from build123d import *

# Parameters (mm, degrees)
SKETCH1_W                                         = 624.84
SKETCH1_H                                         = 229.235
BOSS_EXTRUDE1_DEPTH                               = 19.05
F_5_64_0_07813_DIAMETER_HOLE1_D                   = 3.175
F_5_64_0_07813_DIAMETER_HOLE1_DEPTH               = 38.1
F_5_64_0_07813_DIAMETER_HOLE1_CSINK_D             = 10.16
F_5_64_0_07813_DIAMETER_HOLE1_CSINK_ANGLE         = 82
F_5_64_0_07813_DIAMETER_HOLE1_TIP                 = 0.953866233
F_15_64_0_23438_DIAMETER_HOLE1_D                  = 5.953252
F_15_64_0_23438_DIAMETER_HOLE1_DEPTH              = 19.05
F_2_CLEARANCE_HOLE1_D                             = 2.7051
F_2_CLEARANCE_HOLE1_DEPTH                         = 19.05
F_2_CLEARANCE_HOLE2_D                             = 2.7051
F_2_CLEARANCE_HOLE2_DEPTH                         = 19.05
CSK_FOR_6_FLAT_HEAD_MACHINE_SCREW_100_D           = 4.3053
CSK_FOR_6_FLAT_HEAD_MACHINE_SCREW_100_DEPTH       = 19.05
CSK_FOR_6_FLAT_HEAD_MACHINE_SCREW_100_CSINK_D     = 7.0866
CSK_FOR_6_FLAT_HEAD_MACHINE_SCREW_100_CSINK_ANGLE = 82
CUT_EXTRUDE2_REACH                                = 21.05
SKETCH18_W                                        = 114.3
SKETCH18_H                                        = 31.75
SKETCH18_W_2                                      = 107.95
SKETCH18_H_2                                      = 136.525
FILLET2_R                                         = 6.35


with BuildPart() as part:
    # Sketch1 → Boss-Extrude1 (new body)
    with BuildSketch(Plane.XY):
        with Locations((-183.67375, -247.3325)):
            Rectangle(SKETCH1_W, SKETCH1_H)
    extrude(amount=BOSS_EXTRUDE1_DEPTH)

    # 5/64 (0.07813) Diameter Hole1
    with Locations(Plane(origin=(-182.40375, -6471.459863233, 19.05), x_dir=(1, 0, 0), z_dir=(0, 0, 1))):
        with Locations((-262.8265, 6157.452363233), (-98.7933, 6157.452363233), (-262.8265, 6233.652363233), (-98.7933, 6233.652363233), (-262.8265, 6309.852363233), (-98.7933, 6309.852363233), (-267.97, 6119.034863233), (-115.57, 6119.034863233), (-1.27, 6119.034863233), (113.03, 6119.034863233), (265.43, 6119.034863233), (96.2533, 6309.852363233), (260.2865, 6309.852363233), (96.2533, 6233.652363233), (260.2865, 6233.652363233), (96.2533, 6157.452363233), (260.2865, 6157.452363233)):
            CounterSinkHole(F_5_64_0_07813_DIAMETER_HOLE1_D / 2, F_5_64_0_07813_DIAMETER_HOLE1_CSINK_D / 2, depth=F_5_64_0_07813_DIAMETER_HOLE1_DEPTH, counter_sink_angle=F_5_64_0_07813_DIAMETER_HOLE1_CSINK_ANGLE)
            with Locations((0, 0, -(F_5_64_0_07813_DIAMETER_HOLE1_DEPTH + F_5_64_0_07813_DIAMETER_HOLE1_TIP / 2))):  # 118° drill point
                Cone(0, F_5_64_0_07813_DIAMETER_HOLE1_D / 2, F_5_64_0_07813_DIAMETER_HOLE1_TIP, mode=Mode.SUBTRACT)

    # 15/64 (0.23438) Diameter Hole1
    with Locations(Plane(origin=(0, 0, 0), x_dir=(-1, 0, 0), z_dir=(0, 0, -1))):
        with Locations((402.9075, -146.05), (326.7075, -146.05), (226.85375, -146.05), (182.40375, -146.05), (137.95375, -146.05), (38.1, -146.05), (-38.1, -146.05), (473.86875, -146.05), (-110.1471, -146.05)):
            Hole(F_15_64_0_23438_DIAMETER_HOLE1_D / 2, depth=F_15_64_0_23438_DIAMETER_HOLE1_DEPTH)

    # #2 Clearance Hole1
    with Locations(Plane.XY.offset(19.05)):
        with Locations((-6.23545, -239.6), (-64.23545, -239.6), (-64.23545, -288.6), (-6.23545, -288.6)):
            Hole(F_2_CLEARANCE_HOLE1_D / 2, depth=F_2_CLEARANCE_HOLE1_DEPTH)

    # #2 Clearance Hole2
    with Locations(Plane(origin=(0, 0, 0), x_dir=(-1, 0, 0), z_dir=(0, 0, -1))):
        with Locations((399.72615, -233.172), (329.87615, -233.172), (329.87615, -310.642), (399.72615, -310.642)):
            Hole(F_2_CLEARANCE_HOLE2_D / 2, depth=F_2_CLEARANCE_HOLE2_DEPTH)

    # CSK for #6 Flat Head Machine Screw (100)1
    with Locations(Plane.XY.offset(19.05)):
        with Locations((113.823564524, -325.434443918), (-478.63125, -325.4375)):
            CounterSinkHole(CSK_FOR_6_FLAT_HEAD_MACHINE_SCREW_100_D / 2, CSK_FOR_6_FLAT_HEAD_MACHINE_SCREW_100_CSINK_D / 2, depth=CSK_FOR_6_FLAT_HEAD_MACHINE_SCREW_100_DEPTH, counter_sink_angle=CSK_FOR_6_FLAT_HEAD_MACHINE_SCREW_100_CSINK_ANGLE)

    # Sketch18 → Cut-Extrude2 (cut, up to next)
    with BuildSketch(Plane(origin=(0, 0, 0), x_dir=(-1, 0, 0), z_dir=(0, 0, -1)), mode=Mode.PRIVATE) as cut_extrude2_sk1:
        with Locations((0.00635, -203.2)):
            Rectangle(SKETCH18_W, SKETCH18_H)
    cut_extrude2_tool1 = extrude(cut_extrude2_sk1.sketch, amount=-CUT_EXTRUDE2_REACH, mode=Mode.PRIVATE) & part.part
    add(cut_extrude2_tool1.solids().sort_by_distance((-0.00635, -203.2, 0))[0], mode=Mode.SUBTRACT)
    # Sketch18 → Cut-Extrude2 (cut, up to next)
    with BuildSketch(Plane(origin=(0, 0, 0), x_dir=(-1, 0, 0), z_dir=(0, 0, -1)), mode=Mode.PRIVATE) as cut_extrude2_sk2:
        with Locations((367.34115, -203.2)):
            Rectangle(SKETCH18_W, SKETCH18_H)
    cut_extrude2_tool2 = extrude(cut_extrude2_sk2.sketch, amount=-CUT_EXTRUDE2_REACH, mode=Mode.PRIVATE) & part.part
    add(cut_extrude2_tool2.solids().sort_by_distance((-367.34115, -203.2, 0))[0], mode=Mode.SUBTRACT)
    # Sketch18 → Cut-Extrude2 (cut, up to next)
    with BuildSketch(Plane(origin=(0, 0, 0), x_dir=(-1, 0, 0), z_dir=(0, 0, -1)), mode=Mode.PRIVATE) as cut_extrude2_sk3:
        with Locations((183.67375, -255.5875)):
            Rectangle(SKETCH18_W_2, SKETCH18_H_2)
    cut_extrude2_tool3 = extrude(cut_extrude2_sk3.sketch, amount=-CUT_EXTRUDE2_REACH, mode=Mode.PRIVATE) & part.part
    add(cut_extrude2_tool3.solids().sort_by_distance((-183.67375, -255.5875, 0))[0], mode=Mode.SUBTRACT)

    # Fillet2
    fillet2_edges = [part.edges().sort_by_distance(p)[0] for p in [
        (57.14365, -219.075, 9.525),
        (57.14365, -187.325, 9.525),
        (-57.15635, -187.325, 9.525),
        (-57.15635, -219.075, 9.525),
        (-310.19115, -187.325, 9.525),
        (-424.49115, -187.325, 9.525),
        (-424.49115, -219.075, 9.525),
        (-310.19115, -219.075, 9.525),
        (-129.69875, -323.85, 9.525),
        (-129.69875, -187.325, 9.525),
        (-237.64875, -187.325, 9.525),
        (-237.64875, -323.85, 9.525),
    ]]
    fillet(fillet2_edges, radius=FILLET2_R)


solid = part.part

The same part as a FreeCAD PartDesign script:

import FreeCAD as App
import Part
import Sketcher
from FreeCAD import Vector
Q = App.Units.Quantity


def edges_at(feature, points):
    """Names of the edges that pass closest to the given points."""
    edges = feature.Shape.Edges
    near = lambda p: min(range(len(edges)), key=lambda i: edges[i].distToShape(Part.Vertex(*p))[0])
    return sorted({f"Edge{near(p) + 1}" for p in points})

doc = App.newDocument("Part")
body = doc.addObject("PartDesign::Body", "Body")

# Sketch on XY plane
sketch1 = doc.addObject("Sketcher::SketchObject", "Sketch")
body.addObject(sketch1)
sketch1.AttachmentSupport = (doc.XY_Plane, [""])
sketch1.MapMode = "FlatFace"
sketch1.addGeometry(Part.LineSegment(Vector(-496, -133, 0), Vector(-496, -362, 0)), False)
sketch1.addGeometry(Part.LineSegment(Vector(-496, -362, 0), Vector(129, -362, 0)), False)
sketch1.addGeometry(Part.LineSegment(Vector(129, -362, 0), Vector(129, -133, 0)), False)
sketch1.addGeometry(Part.LineSegment(Vector(129, -133, 0), Vector(-496, -133, 0)), False)
sketch1.addConstraint(Sketcher.Constraint("Coincident", 0, 2, 1, 1))
sketch1.addConstraint(Sketcher.Constraint("Coincident", 1, 2, 2, 1))
sketch1.addConstraint(Sketcher.Constraint("Coincident", 2, 2, 3, 1))
sketch1.addConstraint(Sketcher.Constraint("Coincident", 3, 2, 0, 1))
sketch1.addConstraint(Sketcher.Constraint("Vertical", 0))
sketch1.addConstraint(Sketcher.Constraint("Horizontal", 1))
sketch1.addConstraint(Sketcher.Constraint("Vertical", 2))
sketch1.addConstraint(Sketcher.Constraint("Horizontal", 3))
sketch1.addConstraint(Sketcher.Constraint("DistanceX", 1, 1, 1, 2, Q("24.6 in")))
sketch1.addConstraint(Sketcher.Constraint("DistanceY", 0, 2, 0, 1, Q("9.025 in")))
sketch1.addConstraint(Sketcher.Constraint("DistanceY", 0, 2, -1, 1, Q("14.25 in")))
sketch1.addConstraint(Sketcher.Constraint("DistanceX", 0, 2, -1, 1, Q("19.53125 in")))
pad1 = doc.addObject("PartDesign::Pad", "Pad")
body.addObject(pad1)
pad1.Profile = sketch1
pad1.Length = Q("0.75 in")

# Sketch on XY plane
sketch2 = doc.addObject("Sketcher::SketchObject", "Sketch001")
body.addObject(sketch2)
sketch2.AttachmentSupport = (doc.XY_Plane, [""])
sketch2.MapMode = "FlatFace"
sketch2.AttachmentOffset = App.Placement(Vector(0, 0, 0.75 * 25.4), App.Rotation())
sketch2.addGeometry(Part.Circle(Vector(-445.2, -314, 0), Vector(0, 0, 1), 1.6), False)
sketch2.addGeometry(Part.Circle(Vector(-281.2, -314, 0), Vector(0, 0, 1), 1.6), False)
sketch2.addGeometry(Part.Circle(Vector(-445.2, -237.8, 0), Vector(0, 0, 1), 1.6), False)
sketch2.addGeometry(Part.Circle(Vector(-281.2, -237.8, 0), Vector(0, 0, 1), 1.6), False)
sketch2.addGeometry(Part.Circle(Vector(-445.2, -161.6, 0), Vector(0, 0, 1), 1.6), False)
sketch2.addGeometry(Part.Circle(Vector(-281.2, -161.6, 0), Vector(0, 0, 1), 1.6), False)
sketch2.addGeometry(Part.Circle(Vector(-450.4, -352.4, 0), Vector(0, 0, 1), 1.6), False)
sketch2.addGeometry(Part.Circle(Vector(-298, -352.4, 0), Vector(0, 0, 1), 1.6), False)
sketch2.addGeometry(Part.Circle(Vector(-183.7, -352.4, 0), Vector(0, 0, 1), 1.6), False)
sketch2.addGeometry(Part.Circle(Vector(-69.4, -352.4, 0), Vector(0, 0, 1), 1.6), False)
sketch2.addGeometry(Part.Circle(Vector(83, -352.4, 0), Vector(0, 0, 1), 1.6), False)
sketch2.addGeometry(Part.Circle(Vector(-86.2, -161.6, 0), Vector(0, 0, 1), 1.6), False)
sketch2.addGeometry(Part.Circle(Vector(77.9, -161.6, 0), Vector(0, 0, 1), 1.6), False)
sketch2.addGeometry(Part.Circle(Vector(-86.2, -237.8, 0), Vector(0, 0, 1), 1.6), False)
sketch2.addGeometry(Part.Circle(Vector(77.9, -237.8, 0), Vector(0, 0, 1), 1.6), False)
sketch2.addGeometry(Part.Circle(Vector(-86.2, -314, 0), Vector(0, 0, 1), 1.6), False)
sketch2.addGeometry(Part.Circle(Vector(77.9, -314, 0), Vector(0, 0, 1), 1.6), False)
sketch2.addConstraint(Sketcher.Constraint("Equal", 0, 1))
sketch2.addConstraint(Sketcher.Constraint("Equal", 1, 2))
sketch2.addConstraint(Sketcher.Constraint("Equal", 2, 3))
sketch2.addConstraint(Sketcher.Constraint("Equal", 3, 4))
sketch2.addConstraint(Sketcher.Constraint("Equal", 4, 5))
sketch2.addConstraint(Sketcher.Constraint("Equal", 5, 6))
sketch2.addConstraint(Sketcher.Constraint("Equal", 6, 7))
sketch2.addConstraint(Sketcher.Constraint("Equal", 7, 8))
sketch2.addConstraint(Sketcher.Constraint("Equal", 8, 9))
sketch2.addConstraint(Sketcher.Constraint("Equal", 9, 10))
sketch2.addConstraint(Sketcher.Constraint("Equal", 10, 11))
sketch2.addConstraint(Sketcher.Constraint("Equal", 11, 12))
sketch2.addConstraint(Sketcher.Constraint("Equal", 12, 13))
sketch2.addConstraint(Sketcher.Constraint("Equal", 13, 14))
sketch2.addConstraint(Sketcher.Constraint("Equal", 14, 15))
sketch2.addConstraint(Sketcher.Constraint("Equal", 15, 16))
sketch2.addConstraint(Sketcher.Constraint("Horizontal", 0, 3, 1, 3))
sketch2.addConstraint(Sketcher.Constraint("Horizontal", 2, 3, 3, 3))
sketch2.addConstraint(Sketcher.Constraint("Horizontal", 4, 3, 5, 3))
sketch2.addConstraint(Sketcher.Constraint("Horizontal", 6, 3, 7, 3))
sketch2.addConstraint(Sketcher.Constraint("Horizontal", 7, 3, 8, 3))
sketch2.addConstraint(Sketcher.Constraint("Horizontal", 8, 3, 9, 3))
sketch2.addConstraint(Sketcher.Constraint("Horizontal", 9, 3, 10, 3))
sketch2.addConstraint(Sketcher.Constraint("Horizontal", 5, 3, 11, 3))
sketch2.addConstraint(Sketcher.Constraint("Horizontal", 11, 3, 12, 3))
sketch2.addConstraint(Sketcher.Constraint("Horizontal", 3, 3, 13, 3))
sketch2.addConstraint(Sketcher.Constraint("Horizontal", 13, 3, 14, 3))
sketch2.addConstraint(Sketcher.Constraint("Horizontal", 1, 3, 15, 3))
sketch2.addConstraint(Sketcher.Constraint("Horizontal", 15, 3, 16, 3))
sketch2.addConstraint(Sketcher.Constraint("Vertical", 0, 3, 2, 3))
sketch2.addConstraint(Sketcher.Constraint("Vertical", 1, 3, 3, 3))
sketch2.addConstraint(Sketcher.Constraint("Vertical", 2, 3, 4, 3))
sketch2.addConstraint(Sketcher.Constraint("Vertical", 3, 3, 5, 3))
sketch2.addConstraint(Sketcher.Constraint("Vertical", 11, 3, 13, 3))
sketch2.addConstraint(Sketcher.Constraint("Vertical", 12, 3, 14, 3))
sketch2.addConstraint(Sketcher.Constraint("Vertical", 13, 3, 15, 3))
sketch2.addConstraint(Sketcher.Constraint("Vertical", 14, 3, 16, 3))
sketch2.addConstraint(Sketcher.Constraint("Diameter", 0, Q("0.125 in")))
sketch2.addConstraint(Sketcher.Constraint("DistanceY", 0, 3, 2, 3, Q("3 in")))
sketch2.addConstraint(Sketcher.Constraint("DistanceY", 2, 3, 4, 3, Q("3 in")))
sketch2.addConstraint(Sketcher.Constraint("DistanceX", 6, 3, 7, 3, Q("6 in")))
sketch2.addConstraint(Sketcher.Constraint("DistanceX", 7, 3, 9, 3, Q("9 in")))
sketch2.addConstraint(Sketcher.Constraint("DistanceX", 9, 3, 10, 3, Q("6 in")))
sketch2.addConstraint(Sketcher.Constraint("DistanceX", 7, 3, 8, 3, Q("4.5 in")))
sketch2.addConstraint(Sketcher.Constraint("DistanceY", 6, 3, -1, 1, Q("13.875 in")))
sketch2.addConstraint(Sketcher.Constraint("DistanceX", 0, 3, 1, 3, Q("6.458 in")))
sketch2.addConstraint(Sketcher.Constraint("DistanceX", 5, 3, 11, 3, Q("7.679 in")))
sketch2.addConstraint(Sketcher.Constraint("DistanceX", 11, 3, 12, 3, Q("6.458 in")))
sketch2.addConstraint(Sketcher.Constraint("DistanceY", 0, 3, -1, 1, Q("12.3625 in")))
sketch2.addConstraint(Sketcher.Constraint("DistanceX", 6, 3, 0, 3, Q("0.2025 in")))
sketch2.addConstraint(Sketcher.Constraint("DistanceX", 0, 3, -1, 1, Q("445.23025 mm")))
doc.recompute()
hole = doc.addObject("PartDesign::Hole", "Hole")
body.addObject(hole)
hole.Profile = sketch2
hole.ThreadType = "None"
hole.Diameter = Q("0.125 in")
hole.DepthType = "Dimension"
hole.Depth = Q("1.5 in")
hole.DrillPoint = "Angled"
hole.DrillPointAngle = 118
hole.HoleCutType = "Countersink"
hole.HoleCutDiameter = Q("0.4 in")
hole.HoleCutCountersinkAngle = 82

# Sketch on XY plane
sketch3 = doc.addObject("Sketcher::SketchObject", "Sketch002")
body.addObject(sketch3)
sketch3.AttachmentSupport = (doc.XY_Plane, [""])
sketch3.MapMode = "FlatFace"
sketch3.addGeometry(Part.Circle(Vector(-402.9, -146.1, 0), Vector(0, 0, 1), 3), False)
sketch3.addGeometry(Part.Circle(Vector(-326.7, -146.1, 0), Vector(0, 0, 1), 3), False)
sketch3.addGeometry(Part.Circle(Vector(-226.9, -146.1, 0), Vector(0, 0, 1), 3), False)
sketch3.addGeometry(Part.Circle(Vector(-182.4, -146.1, 0), Vector(0, 0, 1), 3), False)
sketch3.addGeometry(Part.Circle(Vector(-138, -146.1, 0), Vector(0, 0, 1), 3), False)
sketch3.addGeometry(Part.Circle(Vector(-38.1, -146.1, 0), Vector(0, 0, 1), 3), False)
sketch3.addGeometry(Part.Circle(Vector(38.1, -146.1, 0), Vector(0, 0, 1), 3), False)
sketch3.addGeometry(Part.Circle(Vector(-473.9, -146.1, 0), Vector(0, 0, 1), 3), False)
sketch3.addGeometry(Part.Circle(Vector(110.1, -146.1, 0), Vector(0, 0, 1), 3), False)
sketch3.addConstraint(Sketcher.Constraint("Equal", 0, 1))
sketch3.addConstraint(Sketcher.Constraint("Equal", 1, 2))
sketch3.addConstraint(Sketcher.Constraint("Equal", 2, 3))
sketch3.addConstraint(Sketcher.Constraint("Equal", 3, 4))
sketch3.addConstraint(Sketcher.Constraint("Equal", 4, 5))
sketch3.addConstraint(Sketcher.Constraint("Equal", 5, 6))
sketch3.addConstraint(Sketcher.Constraint("Equal", 6, 7))
sketch3.addConstraint(Sketcher.Constraint("Equal", 7, 8))
sketch3.addConstraint(Sketcher.Constraint("Symmetric", 5, 3, 6, 3, -2))
sketch3.addConstraint(Sketcher.Constraint("Horizontal", 0, 3, 1, 3))
sketch3.addConstraint(Sketcher.Constraint("Horizontal", 1, 3, 2, 3))
sketch3.addConstraint(Sketcher.Constraint("Horizontal", 2, 3, 3, 3))
sketch3.addConstraint(Sketcher.Constraint("Horizontal", 3, 3, 4, 3))
sketch3.addConstraint(Sketcher.Constraint("Horizontal", 4, 3, 5, 3))
sketch3.addConstraint(Sketcher.Constraint("Horizontal", 6, 3, 7, 3))
sketch3.addConstraint(Sketcher.Constraint("Horizontal", 7, 3, 8, 3))
sketch3.addConstraint(Sketcher.Constraint("DistanceX", 0, 3, 1, 3, Q("3 in")))
sketch3.addConstraint(Sketcher.Constraint("DistanceX", 5, 3, 6, 3, Q("3 in")))
sketch3.addConstraint(Sketcher.Constraint("DistanceX", 2, 3, 4, 3, Q("3.5 in")))
sketch3.addConstraint(Sketcher.Constraint("DistanceY", 0, 3, -1, 1, Q("5.75 in")))
sketch3.addConstraint(Sketcher.Constraint("DistanceX", 2, 3, 3, 3, Q("1.75 in")))
sketch3.addConstraint(Sketcher.Constraint("DistanceX", 7, 3, -1, 1, Q("18.65625 in")))
sketch3.addConstraint(Sketcher.Constraint("DistanceX", 7, 3, 2, 3, Q("9.725 in")))
sketch3.addConstraint(Sketcher.Constraint("Diameter", 0, Q("5.953252 mm")))
sketch3.addConstraint(Sketcher.Constraint("DistanceX", 0, 3, -1, 1, Q("15.8625 in")))
sketch3.addConstraint(Sketcher.Constraint("DistanceX", -1, 1, 8, 3, Q("4.3365 in")))
doc.recompute()
hole2 = doc.addObject("PartDesign::Hole", "Hole001")
body.addObject(hole2)
hole2.Profile = sketch3
hole2.ThreadType = "None"
hole2.Diameter = 5.953252
hole2.DepthType = "Dimension"
hole2.Depth = Q("0.75 in")
hole2.DrillPoint = "Flat"
hole2.Reversed = True

# Sketch on XY plane
sketch4 = doc.addObject("Sketcher::SketchObject", "Sketch003")
body.addObject(sketch4)
sketch4.AttachmentSupport = (doc.XY_Plane, [""])
sketch4.MapMode = "FlatFace"
sketch4.AttachmentOffset = App.Placement(Vector(0, 0, 0.75 * 25.4), App.Rotation())
sketch4.addGeometry(Part.Circle(Vector(-6.2, -239.6, 0), Vector(0, 0, 1), 1.4), False)
sketch4.addGeometry(Part.Circle(Vector(-64.2, -239.6, 0), Vector(0, 0, 1), 1.4), False)
sketch4.addGeometry(Part.Circle(Vector(-64.2, -288.6, 0), Vector(0, 0, 1), 1.4), False)
sketch4.addGeometry(Part.Circle(Vector(-6.2, -288.6, 0), Vector(0, 0, 1), 1.4), False)
sketch4.addConstraint(Sketcher.Constraint("Equal", 0, 1))
sketch4.addConstraint(Sketcher.Constraint("Equal", 1, 2))
sketch4.addConstraint(Sketcher.Constraint("Equal", 2, 3))
sketch4.addConstraint(Sketcher.Constraint("Horizontal", 0, 3, 1, 3))
sketch4.addConstraint(Sketcher.Constraint("Horizontal", 2, 3, 3, 3))
sketch4.addConstraint(Sketcher.Constraint("Vertical", 1, 3, 2, 3))
sketch4.addConstraint(Sketcher.Constraint("Vertical", 0, 3, 3, 3))
sketch4.addConstraint(Sketcher.Constraint("Diameter", 0, Q("0.1065 in")))
sketch4.addConstraint(Sketcher.Constraint("DistanceY", 0, 3, -1, 1, Q("239.6 mm")))
sketch4.addConstraint(Sketcher.Constraint("DistanceY", 2, 3, -1, 1, Q("288.6 mm")))
sketch4.addConstraint(Sketcher.Constraint("DistanceX", 1, 3, 0, 3, Q("58 mm")))
sketch4.addConstraint(Sketcher.Constraint("DistanceX", 0, 3, -1, 1, Q("6.23545 mm")))
doc.recompute()
hole3 = doc.addObject("PartDesign::Hole", "Hole002")
body.addObject(hole3)
hole3.Profile = sketch4
hole3.ThreadType = "None"
hole3.Diameter = Q("0.1065 in")
hole3.DepthType = "Dimension"
hole3.Depth = Q("0.75 in")
hole3.DrillPoint = "Flat"

# Sketch on XY plane
sketch5 = doc.addObject("Sketcher::SketchObject", "Sketch004")
body.addObject(sketch5)
sketch5.AttachmentSupport = (doc.XY_Plane, [""])
sketch5.MapMode = "FlatFace"
sketch5.addGeometry(Part.Circle(Vector(-399.7, -233.2, 0), Vector(0, 0, 1), 1.4), False)
sketch5.addGeometry(Part.Circle(Vector(-329.9, -233.2, 0), Vector(0, 0, 1), 1.4), False)
sketch5.addGeometry(Part.Circle(Vector(-329.9, -310.6, 0), Vector(0, 0, 1), 1.4), False)
sketch5.addGeometry(Part.Circle(Vector(-399.7, -310.6, 0), Vector(0, 0, 1), 1.4), False)
sketch5.addConstraint(Sketcher.Constraint("Equal", 0, 1))
sketch5.addConstraint(Sketcher.Constraint("Equal", 1, 2))
sketch5.addConstraint(Sketcher.Constraint("Equal", 2, 3))
sketch5.addConstraint(Sketcher.Constraint("Horizontal", 0, 3, 1, 3))
sketch5.addConstraint(Sketcher.Constraint("Horizontal", 2, 3, 3, 3))
sketch5.addConstraint(Sketcher.Constraint("Vertical", 1, 3, 2, 3))
sketch5.addConstraint(Sketcher.Constraint("Vertical", 0, 3, 3, 3))
sketch5.addConstraint(Sketcher.Constraint("Diameter", 0, Q("0.1065 in")))
sketch5.addConstraint(Sketcher.Constraint("DistanceY", 0, 3, -1, 1, Q("9.18 in")))
sketch5.addConstraint(Sketcher.Constraint("DistanceY", 2, 3, -1, 1, Q("12.23 in")))
sketch5.addConstraint(Sketcher.Constraint("DistanceX", 0, 3, 1, 3, Q("2.75 in")))
sketch5.addConstraint(Sketcher.Constraint("DistanceX", 0, 3, -1, 1, Q("399.72615 mm")))
doc.recompute()
hole4 = doc.addObject("PartDesign::Hole", "Hole003")
body.addObject(hole4)
hole4.Profile = sketch5
hole4.ThreadType = "None"
hole4.Diameter = Q("0.1065 in")
hole4.DepthType = "Dimension"
hole4.Depth = Q("0.75 in")
hole4.DrillPoint = "Flat"
hole4.Reversed = True

# Sketch on XY plane
sketch6 = doc.addObject("Sketcher::SketchObject", "Sketch005")
body.addObject(sketch6)
sketch6.AttachmentSupport = (doc.XY_Plane, [""])
sketch6.MapMode = "FlatFace"
sketch6.AttachmentOffset = App.Placement(Vector(0, 0, 0.75 * 25.4), App.Rotation())
sketch6.addGeometry(Part.Circle(Vector(113.8, -325.4, 0), Vector(0, 0, 1), 2.2), False)
sketch6.addGeometry(Part.Circle(Vector(-478.6, -325.4, 0), Vector(0, 0, 1), 2.2), False)
sketch6.addConstraint(Sketcher.Constraint("Equal", 0, 1))
sketch6.addConstraint(Sketcher.Constraint("Diameter", 0, Q("0.1695 in")))
sketch6.addConstraint(Sketcher.Constraint("DistanceX", 1, 3, -1, 1, Q("18.84375 in")))
sketch6.addConstraint(Sketcher.Constraint("DistanceY", 1, 3, -1, 1, Q("12.8125 in")))
sketch6.addConstraint(Sketcher.Constraint("DistanceX", -1, 1, 0, 3, Q("113.823565 mm")))
sketch6.addConstraint(Sketcher.Constraint("DistanceY", 0, 3, -1, 1, Q("325.434444 mm")))
doc.recompute()
hole5 = doc.addObject("PartDesign::Hole", "Hole004")
body.addObject(hole5)
hole5.Profile = sketch6
hole5.ThreadType = "None"
hole5.Diameter = Q("0.1695 in")
hole5.DepthType = "Dimension"
hole5.Depth = Q("0.75 in")
hole5.DrillPoint = "Flat"
hole5.HoleCutType = "Countersink"
hole5.HoleCutDiameter = Q("0.279 in")
hole5.HoleCutCountersinkAngle = 82

# Sketch on XY plane
sketch7 = doc.addObject("Sketcher::SketchObject", "Sketch006")
body.addObject(sketch7)
sketch7.AttachmentSupport = (doc.XY_Plane, [""])
sketch7.MapMode = "FlatFace"
sketch7.addGeometry(Part.LineSegment(Vector(57, -187, 0), Vector(57, -219, 0)), False)
sketch7.addGeometry(Part.LineSegment(Vector(57, -219, 0), Vector(-57, -219, 0)), False)
sketch7.addGeometry(Part.LineSegment(Vector(-57, -219, 0), Vector(-57, -187, 0)), False)
sketch7.addGeometry(Part.LineSegment(Vector(-57, -187, 0), Vector(57, -187, 0)), False)
sketch7.addConstraint(Sketcher.Constraint("Coincident", 0, 2, 1, 1))
sketch7.addConstraint(Sketcher.Constraint("Coincident", 1, 2, 2, 1))
sketch7.addConstraint(Sketcher.Constraint("Coincident", 2, 2, 3, 1))
sketch7.addConstraint(Sketcher.Constraint("Coincident", 3, 2, 0, 1))
sketch7.addConstraint(Sketcher.Constraint("Vertical", 0))
sketch7.addConstraint(Sketcher.Constraint("Horizontal", 1))
sketch7.addConstraint(Sketcher.Constraint("Vertical", 2))
sketch7.addConstraint(Sketcher.Constraint("Horizontal", 3))
sketch7.addConstraint(Sketcher.Constraint("DistanceX", 1, 2, 1, 1, Q("4.5 in")))
sketch7.addConstraint(Sketcher.Constraint("DistanceY", 0, 2, 0, 1, Q("1.25 in")))
sketch7.addConstraint(Sketcher.Constraint("DistanceY", 0, 2, -1, 1, Q("8.625 in")))
sketch7.addConstraint(Sketcher.Constraint("DistanceX", -1, 1, 0, 2, Q("57.14365 mm")))
pocket1 = doc.addObject("PartDesign::Pocket", "Pocket")
body.addObject(pocket1)
pocket1.Profile = sketch7
pocket1.Type = "UpToFirst"
pocket1.Reversed = True

# Sketch on XY plane
sketch8 = doc.addObject("Sketcher::SketchObject", "Sketch007")
body.addObject(sketch8)
sketch8.AttachmentSupport = (doc.XY_Plane, [""])
sketch8.MapMode = "FlatFace"
sketch8.addGeometry(Part.LineSegment(Vector(-310, -187, 0), Vector(-310, -219, 0)), False)
sketch8.addGeometry(Part.LineSegment(Vector(-310, -219, 0), Vector(-424, -219, 0)), False)
sketch8.addGeometry(Part.LineSegment(Vector(-424, -219, 0), Vector(-424, -187, 0)), False)
sketch8.addGeometry(Part.LineSegment(Vector(-424, -187, 0), Vector(-310, -187, 0)), False)
sketch8.addConstraint(Sketcher.Constraint("Coincident", 0, 2, 1, 1))
sketch8.addConstraint(Sketcher.Constraint("Coincident", 1, 2, 2, 1))
sketch8.addConstraint(Sketcher.Constraint("Coincident", 2, 2, 3, 1))
sketch8.addConstraint(Sketcher.Constraint("Coincident", 3, 2, 0, 1))
sketch8.addConstraint(Sketcher.Constraint("Vertical", 0))
sketch8.addConstraint(Sketcher.Constraint("Horizontal", 1))
sketch8.addConstraint(Sketcher.Constraint("Vertical", 2))
sketch8.addConstraint(Sketcher.Constraint("Horizontal", 3))
sketch8.addConstraint(Sketcher.Constraint("DistanceX", 1, 2, 1, 1, Q("4.5 in")))
sketch8.addConstraint(Sketcher.Constraint("DistanceY", 0, 2, 0, 1, Q("1.25 in")))
sketch8.addConstraint(Sketcher.Constraint("DistanceY", 0, 2, -1, 1, Q("8.625 in")))
sketch8.addConstraint(Sketcher.Constraint("DistanceX", 0, 2, -1, 1, Q("310.19115 mm")))
pocket2 = doc.addObject("PartDesign::Pocket", "Pocket001")
body.addObject(pocket2)
pocket2.Profile = sketch8
pocket2.Type = "UpToFirst"
pocket2.Reversed = True

# Sketch on XY plane
sketch9 = doc.addObject("Sketcher::SketchObject", "Sketch008")
body.addObject(sketch9)
sketch9.AttachmentSupport = (doc.XY_Plane, [""])
sketch9.MapMode = "FlatFace"
sketch9.addGeometry(Part.LineSegment(Vector(-130, -187, 0), Vector(-130, -324, 0)), False)
sketch9.addGeometry(Part.LineSegment(Vector(-130, -324, 0), Vector(-238, -324, 0)), False)
sketch9.addGeometry(Part.LineSegment(Vector(-238, -324, 0), Vector(-238, -187, 0)), False)
sketch9.addGeometry(Part.LineSegment(Vector(-238, -187, 0), Vector(-130, -187, 0)), False)
sketch9.addConstraint(Sketcher.Constraint("Coincident", 0, 2, 1, 1))
sketch9.addConstraint(Sketcher.Constraint("Coincident", 1, 2, 2, 1))
sketch9.addConstraint(Sketcher.Constraint("Coincident", 2, 2, 3, 1))
sketch9.addConstraint(Sketcher.Constraint("Coincident", 3, 2, 0, 1))
sketch9.addConstraint(Sketcher.Constraint("Vertical", 0))
sketch9.addConstraint(Sketcher.Constraint("Horizontal", 1))
sketch9.addConstraint(Sketcher.Constraint("Vertical", 2))
sketch9.addConstraint(Sketcher.Constraint("Horizontal", 3))
sketch9.addConstraint(Sketcher.Constraint("DistanceX", 1, 2, 1, 1, Q("4.25 in")))
sketch9.addConstraint(Sketcher.Constraint("DistanceY", 0, 2, 0, 1, Q("5.375 in")))
sketch9.addConstraint(Sketcher.Constraint("DistanceY", 0, 2, -1, 1, Q("12.75 in")))
sketch9.addConstraint(Sketcher.Constraint("DistanceX", 0, 2, -1, 1, Q("129.69875 mm")))
pocket3 = doc.addObject("PartDesign::Pocket", "Pocket002")
body.addObject(pocket3)
pocket3.Profile = sketch9
pocket3.Type = "UpToFirst"
pocket3.Reversed = True
doc.recompute()

fillet = doc.addObject("PartDesign::Fillet", "Fillet")
body.addObject(fillet)
fillet.Base = (pocket3, edges_at(pocket3, [
    (57.144, -219.075, 9.525),
    (57.144, -187.325, 9.525),
    (-57.156, -187.325, 9.525),
    (-57.156, -219.075, 9.525),
    (-310.191, -187.325, 9.525),
    (-424.491, -187.325, 9.525),
    (-424.491, -219.075, 9.525),
    (-310.191, -219.075, 9.525),
    (-129.699, -323.85, 9.525),
    (-129.699, -187.325, 9.525),
    (-237.649, -187.325, 9.525),
    (-237.649, -323.85, 9.525),
]))
fillet.Radius = Q("0.25 in")

doc.recompute()
